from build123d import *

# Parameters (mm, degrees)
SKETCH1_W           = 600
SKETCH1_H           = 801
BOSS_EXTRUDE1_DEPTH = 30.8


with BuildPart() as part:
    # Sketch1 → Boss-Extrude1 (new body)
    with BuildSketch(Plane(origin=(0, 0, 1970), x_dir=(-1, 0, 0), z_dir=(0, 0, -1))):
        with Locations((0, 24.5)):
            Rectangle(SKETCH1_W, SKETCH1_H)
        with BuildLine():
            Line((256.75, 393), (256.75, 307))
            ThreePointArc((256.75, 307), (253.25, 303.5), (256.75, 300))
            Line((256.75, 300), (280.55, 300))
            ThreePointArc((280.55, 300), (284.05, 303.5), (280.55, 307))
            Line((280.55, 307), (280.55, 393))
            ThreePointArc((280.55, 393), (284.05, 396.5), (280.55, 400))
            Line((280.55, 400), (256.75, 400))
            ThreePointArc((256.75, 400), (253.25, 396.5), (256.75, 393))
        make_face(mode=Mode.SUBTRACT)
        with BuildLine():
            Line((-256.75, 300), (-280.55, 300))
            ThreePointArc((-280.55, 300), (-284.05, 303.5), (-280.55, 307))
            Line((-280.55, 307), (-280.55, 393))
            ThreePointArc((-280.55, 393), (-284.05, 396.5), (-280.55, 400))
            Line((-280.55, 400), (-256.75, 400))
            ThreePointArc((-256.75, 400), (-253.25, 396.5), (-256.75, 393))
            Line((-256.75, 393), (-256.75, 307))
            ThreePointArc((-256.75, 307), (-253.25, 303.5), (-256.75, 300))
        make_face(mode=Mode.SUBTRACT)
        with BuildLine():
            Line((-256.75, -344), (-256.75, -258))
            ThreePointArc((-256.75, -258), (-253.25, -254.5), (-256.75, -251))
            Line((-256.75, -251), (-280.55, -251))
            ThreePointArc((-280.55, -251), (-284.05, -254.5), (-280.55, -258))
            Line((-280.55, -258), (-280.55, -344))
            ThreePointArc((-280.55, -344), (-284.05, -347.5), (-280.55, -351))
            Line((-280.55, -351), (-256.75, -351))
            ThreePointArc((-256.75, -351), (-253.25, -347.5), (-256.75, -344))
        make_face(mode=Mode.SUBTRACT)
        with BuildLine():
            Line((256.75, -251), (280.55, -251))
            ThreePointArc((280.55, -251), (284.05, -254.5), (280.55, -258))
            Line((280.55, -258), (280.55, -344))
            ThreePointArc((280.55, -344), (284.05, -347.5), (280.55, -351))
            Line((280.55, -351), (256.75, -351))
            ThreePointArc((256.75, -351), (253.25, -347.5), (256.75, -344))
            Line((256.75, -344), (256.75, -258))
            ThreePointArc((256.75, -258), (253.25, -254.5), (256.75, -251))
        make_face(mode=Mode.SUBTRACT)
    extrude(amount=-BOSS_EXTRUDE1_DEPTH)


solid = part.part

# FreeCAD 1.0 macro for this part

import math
import FreeCAD as App
import Part
import Sketcher
from FreeCAD import Vector

doc = App.newDocument("Part")
body = doc.addObject("PartDesign::Body", "Body")

sketch1 = body.newObject("Sketcher::SketchObject", "Sketch")
sketch1.AttachmentSupport = (doc.getObject("XY_Plane"), [""])
sketch1.MapMode = "FlatFace"
sketch1.AttachmentOffset = App.Placement(Vector(0, 0, 1970), App.Rotation())
sketch1.addGeometry(Part.LineSegment(Vector(300, 425, 0), Vector(300, -376, 0)), False)
sketch1.addGeometry(Part.LineSegment(Vector(300, -376, 0), Vector(-300, -376, 0)), False)
sketch1.addGeometry(Part.LineSegment(Vector(-300, -376, 0), Vector(-300, 425, 0)), False)
sketch1.addGeometry(Part.LineSegment(Vector(-300, 425, 0), Vector(300, 425, 0)), False)
sketch1.addGeometry(Part.LineSegment(Vector(256.8, -258, 0), Vector(256.8, -344, 0)), False)
sketch1.addGeometry(Part.ArcOfCircle(Part.Circle(Vector(256.8, -347.5, 0), Vector(0, 0, 1), 3.5), math.radians(90), math.radians(270)), False)
sketch1.addGeometry(Part.LineSegment(Vector(256.8, -351, 0), Vector(280.6, -351, 0)), False)
sketch1.addGeometry(Part.ArcOfCircle(Part.Circle(Vector(280.6, -347.5, 0), Vector(0, 0, 1), 3.5), math.radians(-90), math.radians(90)), False)
sketch1.addGeometry(Part.LineSegment(Vector(280.6, -344, 0), Vector(280.6, -258, 0)), False)
sketch1.addGeometry(Part.ArcOfCircle(Part.Circle(Vector(280.6, -254.5, 0), Vector(0, 0, 1), 3.5), math.radians(-90), math.radians(90)), False)
sketch1.addGeometry(Part.LineSegment(Vector(280.6, -251, 0), Vector(256.8, -251, 0)), False)
sketch1.addGeometry(Part.ArcOfCircle(Part.Circle(Vector(256.8, -254.5, 0), Vector(0, 0, 1), 3.5), math.radians(90), math.radians(270)), False)
sketch1.addGeometry(Part.ArcOfCircle(Part.Circle(Vector(-256.8, -254.5, 0), Vector(0, 0, 1), 3.5), math.radians(-90), math.radians(90)), False)
sketch1.addGeometry(Part.LineSegment(Vector(-256.8, -251, 0), Vector(-280.6, -251, 0)), False)
sketch1.addGeometry(Part.ArcOfCircle(Part.Circle(Vector(-280.6, -254.5, 0), Vector(0, 0, 1), 3.5), math.radians(90), math.radians(270)), False)
sketch1.addGeometry(Part.LineSegment(Vector(-280.6, -258, 0), Vector(-280.6, -344, 0)), False)
sketch1.addGeometry(Part.ArcOfCircle(Part.Circle(Vector(-280.6, -347.5, 0), Vector(0, 0, 1), 3.5), math.radians(90), math.radians(270)), False)
sketch1.addGeometry(Part.LineSegment(Vector(-280.6, -351, 0), Vector(-256.8, -351, 0)), False)
sketch1.addGeometry(Part.ArcOfCircle(Part.Circle(Vector(-256.8, -347.5, 0), Vector(0, 0, 1), 3.5), math.radians(-90), math.radians(90)), False)
sketch1.addGeometry(Part.LineSegment(Vector(-256.8, -344, 0), Vector(-256.8, -258, 0)), False)
sketch1.addGeometry(Part.ArcOfCircle(Part.Circle(Vector(256.8, 303.5, 0), Vector(0, 0, 1), 3.5), math.radians(90), math.radians(270)), False)
sketch1.addGeometry(Part.LineSegment(Vector(256.8, 300, 0), Vector(280.6, 300, 0)), False)
sketch1.addGeometry(Part.ArcOfCircle(Part.Circle(Vector(280.6, 303.5, 0), Vector(0, 0, 1), 3.5), math.radians(-90), math.radians(90)), False)
sketch1.addGeometry(Part.LineSegment(Vector(280.6, 307, 0), Vector(280.6, 393, 0)), False)
sketch1.addGeometry(Part.ArcOfCircle(Part.Circle(Vector(280.6, 396.5, 0), Vector(0, 0, 1), 3.5), math.radians(-90), math.radians(90)), False)
sketch1.addGeometry(Part.LineSegment(Vector(280.6, 400, 0), Vector(256.8, 400, 0)), False)
sketch1.addGeometry(Part.ArcOfCircle(Part.Circle(Vector(256.8, 396.5, 0), Vector(0, 0, 1), 3.5), math.radians(90), math.radians(270)), False)
sketch1.addGeometry(Part.LineSegment(Vector(256.8, 393, 0), Vector(256.8, 307, 0)), False)
sketch1.addGeometry(Part.LineSegment(Vector(-256.8, 307, 0), Vector(-256.8, 393, 0)), False)
sketch1.addGeometry(Part.ArcOfCircle(Part.Circle(Vector(-256.8, 396.5, 0), Vector(0, 0, 1), 3.5), math.radians(-90), math.radians(90)), False)
sketch1.addGeometry(Part.LineSegment(Vector(-256.8, 400, 0), Vector(-280.6, 400, 0)), False)
sketch1.addGeometry(Part.ArcOfCircle(Part.Circle(Vector(-280.6, 396.5, 0), Vector(0, 0, 1), 3.5), math.radians(90), math.radians(270)), False)
sketch1.addGeometry(Part.LineSegment(Vector(-280.6, 393, 0), Vector(-280.6, 307, 0)), False)
sketch1.addGeometry(Part.ArcOfCircle(Part.Circle(Vector(-280.6, 303.5, 0), Vector(0, 0, 1), 3.5), math.radians(90), math.radians(270)), False)
sketch1.addGeometry(Part.LineSegment(Vector(-280.6, 300, 0), Vector(-256.8, 300, 0)), False)
sketch1.addGeometry(Part.ArcOfCircle(Part.Circle(Vector(-256.8, 303.5, 0), Vector(0, 0, 1), 3.5), math.radians(-90), math.radians(90)), False)
sketch1.addConstraint(Sketcher.Constraint("Coincident", 0, 2, 1, 1))
sketch1.addConstraint(Sketcher.Constraint("Coincident", 1, 2, 2, 1))
sketch1.addConstraint(Sketcher.Constraint("Coincident", 2, 2, 3, 1))
sketch1.addConstraint(Sketcher.Constraint("Coincident", 3, 2, 0, 1))
sketch1.addConstraint(Sketcher.Constraint("Coincident", 4, 2, 5, 1))
sketch1.addConstraint(Sketcher.Constraint("Tangent", 5, 2, 6, 1))
sketch1.addConstraint(Sketcher.Constraint("Tangent", 6, 2, 7, 1))
sketch1.addConstraint(Sketcher.Constraint("Coincident", 7, 2, 8, 1))
sketch1.addConstraint(Sketcher.Constraint("Coincident", 8, 2, 9, 1))
sketch1.addConstraint(Sketcher.Constraint("Tangent", 9, 2, 10, 1))
sketch1.addConstraint(Sketcher.Constraint("Tangent", 10, 2, 11, 1))
sketch1.addConstraint(Sketcher.Constraint("Coincident", 11, 2, 4, 1))
sketch1.addConstraint(Sketcher.Constraint("Tangent", 12, 2, 13, 1))
sketch1.addConstraint(Sketcher.Constraint("Tangent", 13, 2, 14, 1))
sketch1.addConstraint(Sketcher.Constraint("Coincident", 14, 2, 15, 1))
sketch1.addConstraint(Sketcher.Constraint("Coincident", 15, 2, 16, 1))
sketch1.addConstraint(Sketcher.Constraint("Tangent", 16, 2, 17, 1))
sketch1.addConstraint(Sketcher.Constraint("Tangent", 17, 2, 18, 1))
sketch1.addConstraint(Sketcher.Constraint("Coincident", 18, 2, 19, 1))
sketch1.addConstraint(Sketcher.Constraint("Coincident", 19, 2, 12, 1))
sketch1.addConstraint(Sketcher.Constraint("Tangent", 20, 2, 21, 1))
sketch1.addConstraint(Sketcher.Constraint("Tangent", 21, 2, 22, 1))
sketch1.addConstraint(Sketcher.Constraint("Coincident", 22, 2, 23, 1))
sketch1.addConstraint(Sketcher.Constraint("Coincident", 23, 2, 24, 1))
sketch1.addConstraint(Sketcher.Constraint("Tangent", 24, 2, 25, 1))
sketch1.addConstraint(Sketcher.Constraint("Tangent", 25, 2, 26, 1))
sketch1.addConstraint(Sketcher.Constraint("Coincident", 26, 2, 27, 1))
sketch1.addConstraint(Sketcher.Constraint("Coincident", 27, 2, 20, 1))
sketch1.addConstraint(Sketcher.Constraint("Coincident", 28, 2, 29, 1))
sketch1.addConstraint(Sketcher.Constraint("Tangent", 29, 2, 30, 1))
sketch1.addConstraint(Sketcher.Constraint("Tangent", 30, 2, 31, 1))
sketch1.addConstraint(Sketcher.Constraint("Coincident", 31, 2, 32, 1))
sketch1.addConstraint(Sketcher.Constraint("Coincident", 32, 2, 33, 1))
sketch1.addConstraint(Sketcher.Constraint("Tangent", 33, 2, 34, 1))
sketch1.addConstraint(Sketcher.Constraint("Tangent", 34, 2, 35, 1))
sketch1.addConstraint(Sketcher.Constraint("Coincident", 35, 2, 28, 1))
sketch1.addConstraint(Sketcher.Constraint("Vertical", 0))
sketch1.addConstraint(Sketcher.Constraint("Horizontal", 1))
sketch1.addConstraint(Sketcher.Constraint("Vertical", 2))
sketch1.addConstraint(Sketcher.Constraint("Horizontal", 3))
sketch1.addConstraint(Sketcher.Constraint("Vertical", 4))
sketch1.addConstraint(Sketcher.Constraint("Horizontal", 6))
sketch1.addConstraint(Sketcher.Constraint("Vertical", 8))
sketch1.addConstraint(Sketcher.Constraint("Horizontal", 10))
sketch1.addConstraint(Sketcher.Constraint("Horizontal", 13))
sketch1.addConstraint(Sketcher.Constraint("Vertical", 15))
sketch1.addConstraint(Sketcher.Constraint("Horizontal", 17))
sketch1.addConstraint(Sketcher.Constraint("Vertical", 19))
sketch1.addConstraint(Sketcher.Constraint("Horizontal", 21))
sketch1.addConstraint(Sketcher.Constraint("Vertical", 23))
sketch1.addConstraint(Sketcher.Constraint("Horizontal", 25))
sketch1.addConstraint(Sketcher.Constraint("Vertical", 27))
sketch1.addConstraint(Sketcher.Constraint("Vertical", 28))
sketch1.addConstraint(Sketcher.Constraint("Horizontal", 30))
sketch1.addConstraint(Sketcher.Constraint("Vertical", 32))
sketch1.addConstraint(Sketcher.Constraint("Horizontal", 34))
sketch1.addConstraint(Sketcher.Constraint("Equal", 5, 7))
sketch1.addConstraint(Sketcher.Constraint("Equal", 7, 9))
sketch1.addConstraint(Sketcher.Constraint("Equal", 9, 11))
sketch1.addConstraint(Sketcher.Constraint("Equal", 11, 12))
sketch1.addConstraint(Sketcher.Constraint("Equal", 12, 14))
sketch1.addConstraint(Sketcher.Constraint("Equal", 14, 16))
sketch1.addConstraint(Sketcher.Constraint("Equal", 16, 18))
sketch1.addConstraint(Sketcher.Constraint("Equal", 18, 20))
sketch1.addConstraint(Sketcher.Constraint("Equal", 20, 22))
sketch1.addConstraint(Sketcher.Constraint("Equal", 22, 24))
sketch1.addConstraint(Sketcher.Constraint("Equal", 24, 26))
sketch1.addConstraint(Sketcher.Constraint("Equal", 26, 29))
sketch1.addConstraint(Sketcher.Constraint("Equal", 29, 31))
sketch1.addConstraint(Sketcher.Constraint("Equal", 31, 33))
sketch1.addConstraint(Sketcher.Constraint("Equal", 33, 35))
sketch1.addConstraint(Sketcher.Constraint("Symmetric", 11, 3, 12, 3, -2))
sketch1.addConstraint(Sketcher.Constraint("Symmetric", 7, 3, 16, 3, -2))
sketch1.addConstraint(Sketcher.Constraint("Symmetric", 26, 3, 29, 3, -2))
sketch1.addConstraint(Sketcher.Constraint("Symmetric", 22, 3, 33, 3, -2))
sketch1.addConstraint(Sketcher.Constraint("Vertical", 7, 3, 9, 3))
sketch1.addConstraint(Sketcher.Constraint("Vertical", 5, 3, 11, 3))
sketch1.addConstraint(Sketcher.Constraint("Vertical", 14, 3, 16, 3))
sketch1.addConstraint(Sketcher.Constraint("Vertical", 12, 3, 18, 3))
sketch1.addConstraint(Sketcher.Constraint("Vertical", 11, 3, 20, 3))
sketch1.addConstraint(Sketcher.Constraint("Vertical", 9, 3, 22, 3))
sketch1.addConstraint(Sketcher.Constraint("Vertical", 22, 3, 24, 3))
sketch1.addConstraint(Sketcher.Constraint("Vertical", 20, 3, 26, 3))
sketch1.addConstraint(Sketcher.Constraint("Vertical", 16, 3, 31, 3))
sketch1.addConstraint(Sketcher.Constraint("Vertical", 29, 3, 35, 3))
sketch1.addConstraint(Sketcher.Constraint("Vertical", 26, 3, 4, 2))
sketch1.addConstraint(Sketcher.Constraint("Vertical", 6, 2, 7, 2))
sketch1.addConstraint(Sketcher.Constraint("Vertical", 13, 2, 14, 2))
sketch1.addConstraint(Sketcher.Constraint("Vertical", 17, 2, 18, 2))
sketch1.addConstraint(Sketcher.Constraint("Vertical", 21, 2, 22, 2))
sketch1.addConstraint(Sketcher.Constraint("Vertical", 25, 2, 26, 2))
sketch1.addConstraint(Sketcher.Constraint("Vertical", 19, 2, 28, 2))
sketch1.addConstraint(Sketcher.Constraint("Vertical", 30, 2, 31, 2))
sketch1.addConstraint(Sketcher.Constraint("Equal", 19, 23))
sketch1.addConstraint(Sketcher.Constraint("Radius", 5, 3.5))
sketch1.addConstraint(Sketcher.Constraint("DistanceX", 1, 2, 1, 1, 600.0))
sketch1.addConstraint(Sketcher.Constraint("DistanceY", 0, 2, 0, 1, 801.0))
sketch1.addConstraint(Sketcher.Constraint("DistanceY", 4, 2, 4, 1, 86.0))
sketch1.addConstraint(Sketcher.Constraint("DistanceX", 6, 1, 6, 2, 23.8))
sketch1.addConstraint(Sketcher.Constraint("DistanceX", -1, 1, 0, 2, 300.0))
sketch1.addConstraint(Sketcher.Constraint("DistanceY", 0, 2, -1, 1, 376.0))
sketch1.addConstraint(Sketcher.Constraint("DistanceY", 4, 2, -1, 1, 344.0))
sketch1.addConstraint(Sketcher.Constraint("DistanceY", -1, 1, 20, 2, 300.0))
sketch1.addConstraint(Sketcher.Constraint("DistanceX", 12, 3, 11, 3, 513.5))
pad1 = body.newObject("PartDesign::Pad", "Pad")
pad1.Profile = sketch1
pad1.Length = 30.8

doc.recompute()
